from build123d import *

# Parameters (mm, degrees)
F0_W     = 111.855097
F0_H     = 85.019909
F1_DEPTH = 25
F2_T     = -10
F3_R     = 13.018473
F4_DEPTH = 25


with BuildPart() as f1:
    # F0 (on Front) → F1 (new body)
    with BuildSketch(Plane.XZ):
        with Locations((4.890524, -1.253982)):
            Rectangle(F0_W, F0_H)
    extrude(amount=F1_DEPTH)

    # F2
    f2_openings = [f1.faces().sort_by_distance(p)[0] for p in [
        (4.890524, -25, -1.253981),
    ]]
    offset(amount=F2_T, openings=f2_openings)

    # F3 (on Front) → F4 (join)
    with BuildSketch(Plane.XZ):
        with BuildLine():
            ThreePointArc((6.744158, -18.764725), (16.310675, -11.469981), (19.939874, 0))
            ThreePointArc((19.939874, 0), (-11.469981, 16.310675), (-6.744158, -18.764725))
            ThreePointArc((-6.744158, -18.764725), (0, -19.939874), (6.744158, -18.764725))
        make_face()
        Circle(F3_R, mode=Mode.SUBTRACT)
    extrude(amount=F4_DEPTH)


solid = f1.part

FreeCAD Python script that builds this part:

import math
import FreeCAD as App
import Part
import Sketcher
Q = App.Units.Quantity


def faces_at(feature, points):
    """Names of the faces that lie closest to the given points."""
    faces = feature.Shape.Faces
    near = lambda p: min(range(len(faces)), key=lambda i: faces[i].distToShape(Part.Vertex(*p))[0])
    return sorted({f"Face{near(p) + 1}" for p in points})


def add_polygon(sketch, points):
    """Adds a closed chain of lines whose ends are joined by coincident constraints."""
    first, n = sketch.GeometryCount, len(points)
    for a, b in zip(points, points[1:] + points[:1]):
        sketch.addGeometry(Part.LineSegment(App.Vector(*a, 0), App.Vector(*b, 0)), False)
    for i in range(n):
        sketch.addConstraint(Sketcher.Constraint("Coincident", first + i, 2, first + (i + 1) % n, 1))

doc = App.newDocument("Part")
body = doc.addObject("PartDesign::Body", "Body")

# Sketch on XZ plane
sketch1 = body.newObject("Sketcher::SketchObject", "Sketch")
sketch1.AttachmentSupport = (doc.getObject("XZ_Plane"), [""])
sketch1.MapMode = "FlatFace"
add_polygon(sketch1, [(-51, 41), (-51, -44), (61, -44), (61, 41)])  # lines 0-3
sketch1.addConstraint([
    Sketcher.Constraint("Vertical", 0),
    Sketcher.Constraint("Horizontal", 1),
    Sketcher.Constraint("Vertical", 2),
    Sketcher.Constraint("Horizontal", 3),
    Sketcher.Constraint("DistanceY", 0, 2, 0, 1, Q("85.019909 mm")),
    Sketcher.Constraint("DistanceX", 1, 1, 1, 2, Q("111.855097 mm")),
    Sketcher.Constraint("DistanceX", 0, 2, -1, 1, Q("51.037025 mm")),
    Sketcher.Constraint("DistanceY", 0, 2, -1, 1, Q("43.763936 mm")),
])
pad1 = body.newObject("PartDesign::Pad", "Pad")
pad1.Profile = sketch1
pad1.Length = 25
doc.recompute()

thickness = body.newObject("PartDesign::Thickness", "Thickness")
thickness.Base = (pad1, faces_at(pad1, [(4.891, -25, -1.254)]))
thickness.Value = 10
thickness.Reversed = True
thickness.Join = "Arc"

# Sketch on XZ plane
sketch2 = body.newObject("Sketcher::SketchObject", "Sketch001")
sketch2.AttachmentSupport = (doc.getObject("XZ_Plane"), [""])
sketch2.MapMode = "FlatFace"
sketch2.addGeometry([
    Part.ArcOfCircle(Part.Circle(App.Vector(0, 0, 0), App.Vector(0, 0, 1), 20), math.radians(-70), math.radians(0)),
    Part.ArcOfCircle(Part.Circle(App.Vector(0, 0, 0), App.Vector(0, 0, 1), 20), math.radians(0), math.radians(250)),
    Part.ArcOfCircle(Part.Circle(App.Vector(0, 0, 0), App.Vector(0, 0, 1), 20), math.radians(-110), math.radians(-70)),
    Part.Circle(App.Vector(0, 0, 0), App.Vector(0, 0, 1), 13),
], False)
sketch2.addConstraint([
    Sketcher.Constraint("Tangent", 0, 2, 1, 1),
    Sketcher.Constraint("Tangent", 1, 2, 2, 1),
    Sketcher.Constraint("Tangent", 2, 2, 0, 1),
    Sketcher.Constraint("Coincident", 0, 3, -1, 1),
    Sketcher.Constraint("Coincident", 3, 3, -1, 1),
    Sketcher.Constraint("PointOnObject", 0, 2, -1),
    Sketcher.Constraint("Horizontal", 1, 2, 2, 2),
    Sketcher.Constraint("Diameter", 3, Q("26.036946 mm")),
    Sketcher.Constraint("Radius", 0, Q("19.939873 mm")),
    Sketcher.Constraint("DistanceX", 1, 2, -1, 1, Q("6.744158 mm")),
])
pad2 = body.newObject("PartDesign::Pad", "Pad001")
pad2.Profile = sketch2
pad2.Length = 25

doc.recompute()
